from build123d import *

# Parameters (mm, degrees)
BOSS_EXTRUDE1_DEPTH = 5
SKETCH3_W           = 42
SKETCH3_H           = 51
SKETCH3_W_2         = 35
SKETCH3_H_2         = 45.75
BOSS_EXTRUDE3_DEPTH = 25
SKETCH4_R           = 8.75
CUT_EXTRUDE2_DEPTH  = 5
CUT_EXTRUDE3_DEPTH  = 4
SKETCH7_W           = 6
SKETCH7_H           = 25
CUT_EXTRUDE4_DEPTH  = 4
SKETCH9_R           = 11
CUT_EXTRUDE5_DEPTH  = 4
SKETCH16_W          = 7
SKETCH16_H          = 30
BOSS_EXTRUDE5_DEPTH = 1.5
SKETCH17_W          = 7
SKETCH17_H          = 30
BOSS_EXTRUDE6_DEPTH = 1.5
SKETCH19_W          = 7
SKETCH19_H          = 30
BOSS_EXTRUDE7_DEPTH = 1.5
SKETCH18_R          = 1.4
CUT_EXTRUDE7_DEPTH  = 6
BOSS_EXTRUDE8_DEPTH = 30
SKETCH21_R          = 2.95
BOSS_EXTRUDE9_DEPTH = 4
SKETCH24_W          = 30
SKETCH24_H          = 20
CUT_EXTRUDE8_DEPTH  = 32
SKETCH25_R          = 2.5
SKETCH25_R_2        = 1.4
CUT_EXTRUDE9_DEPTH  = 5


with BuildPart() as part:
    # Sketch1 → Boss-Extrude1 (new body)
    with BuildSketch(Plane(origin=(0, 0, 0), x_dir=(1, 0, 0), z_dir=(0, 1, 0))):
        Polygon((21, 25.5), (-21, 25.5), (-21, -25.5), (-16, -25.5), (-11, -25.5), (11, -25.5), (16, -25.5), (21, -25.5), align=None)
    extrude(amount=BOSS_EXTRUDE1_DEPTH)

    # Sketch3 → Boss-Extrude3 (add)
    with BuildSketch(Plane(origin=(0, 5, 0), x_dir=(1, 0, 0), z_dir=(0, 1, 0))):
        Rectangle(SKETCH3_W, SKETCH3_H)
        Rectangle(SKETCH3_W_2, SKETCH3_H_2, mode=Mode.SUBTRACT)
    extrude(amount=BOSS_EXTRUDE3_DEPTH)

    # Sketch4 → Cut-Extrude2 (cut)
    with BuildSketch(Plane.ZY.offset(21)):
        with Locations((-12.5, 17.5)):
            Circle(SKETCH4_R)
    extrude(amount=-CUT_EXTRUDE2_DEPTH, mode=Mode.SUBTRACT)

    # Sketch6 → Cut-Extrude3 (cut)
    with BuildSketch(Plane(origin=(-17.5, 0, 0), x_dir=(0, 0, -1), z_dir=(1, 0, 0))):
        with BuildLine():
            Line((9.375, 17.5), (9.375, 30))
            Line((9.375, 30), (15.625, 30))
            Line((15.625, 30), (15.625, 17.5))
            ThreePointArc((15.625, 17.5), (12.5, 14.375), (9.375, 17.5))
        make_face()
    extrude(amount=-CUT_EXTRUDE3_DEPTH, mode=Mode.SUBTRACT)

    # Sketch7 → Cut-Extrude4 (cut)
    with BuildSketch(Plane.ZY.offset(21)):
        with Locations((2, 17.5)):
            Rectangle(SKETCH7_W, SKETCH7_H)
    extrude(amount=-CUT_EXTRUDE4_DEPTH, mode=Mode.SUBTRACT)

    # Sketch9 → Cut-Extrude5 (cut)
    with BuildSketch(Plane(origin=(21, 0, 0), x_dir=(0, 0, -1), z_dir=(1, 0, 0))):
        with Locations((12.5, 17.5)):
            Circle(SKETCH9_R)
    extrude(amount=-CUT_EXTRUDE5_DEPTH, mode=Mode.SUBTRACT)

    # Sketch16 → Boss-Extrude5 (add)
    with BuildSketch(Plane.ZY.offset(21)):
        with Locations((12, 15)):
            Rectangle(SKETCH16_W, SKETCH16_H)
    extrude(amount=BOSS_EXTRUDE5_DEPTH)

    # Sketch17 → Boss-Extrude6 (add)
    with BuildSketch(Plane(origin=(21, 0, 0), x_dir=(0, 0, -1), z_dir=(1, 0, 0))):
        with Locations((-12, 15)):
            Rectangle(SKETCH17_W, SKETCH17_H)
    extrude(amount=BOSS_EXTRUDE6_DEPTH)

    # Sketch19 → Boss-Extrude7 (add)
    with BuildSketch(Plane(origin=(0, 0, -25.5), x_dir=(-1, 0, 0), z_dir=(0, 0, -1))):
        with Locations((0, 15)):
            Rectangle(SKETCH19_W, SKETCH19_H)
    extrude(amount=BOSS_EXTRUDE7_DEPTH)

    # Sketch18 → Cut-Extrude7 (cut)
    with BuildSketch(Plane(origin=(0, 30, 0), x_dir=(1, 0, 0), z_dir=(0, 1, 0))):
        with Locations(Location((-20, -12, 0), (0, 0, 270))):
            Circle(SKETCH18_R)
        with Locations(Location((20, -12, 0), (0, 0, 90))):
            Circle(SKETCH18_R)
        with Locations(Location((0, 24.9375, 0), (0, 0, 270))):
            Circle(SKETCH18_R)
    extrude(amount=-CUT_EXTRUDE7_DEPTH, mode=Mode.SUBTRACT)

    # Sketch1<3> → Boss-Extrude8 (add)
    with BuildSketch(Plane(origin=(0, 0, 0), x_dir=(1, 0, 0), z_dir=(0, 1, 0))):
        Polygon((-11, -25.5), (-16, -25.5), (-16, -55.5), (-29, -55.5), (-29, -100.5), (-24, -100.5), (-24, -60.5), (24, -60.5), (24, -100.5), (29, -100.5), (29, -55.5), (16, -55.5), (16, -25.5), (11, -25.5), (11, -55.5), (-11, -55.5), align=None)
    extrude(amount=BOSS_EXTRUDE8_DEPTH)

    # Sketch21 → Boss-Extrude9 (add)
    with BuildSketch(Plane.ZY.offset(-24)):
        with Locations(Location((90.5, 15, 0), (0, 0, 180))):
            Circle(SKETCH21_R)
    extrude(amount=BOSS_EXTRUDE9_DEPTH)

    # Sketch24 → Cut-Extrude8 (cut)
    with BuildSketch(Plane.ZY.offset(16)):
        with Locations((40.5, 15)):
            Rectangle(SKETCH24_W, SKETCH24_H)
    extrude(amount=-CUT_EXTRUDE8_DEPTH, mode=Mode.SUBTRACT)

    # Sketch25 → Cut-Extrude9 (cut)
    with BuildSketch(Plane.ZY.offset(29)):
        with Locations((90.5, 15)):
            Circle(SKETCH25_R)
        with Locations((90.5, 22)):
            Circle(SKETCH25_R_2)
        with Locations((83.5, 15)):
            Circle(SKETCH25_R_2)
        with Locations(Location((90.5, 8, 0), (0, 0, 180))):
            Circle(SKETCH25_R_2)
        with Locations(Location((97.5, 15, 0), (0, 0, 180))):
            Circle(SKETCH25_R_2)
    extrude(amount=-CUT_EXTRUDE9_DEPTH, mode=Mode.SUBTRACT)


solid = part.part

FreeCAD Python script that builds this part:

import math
import FreeCAD as App
import Part
import Sketcher
Q = App.Units.Quantity

doc = App.newDocument("Part")
body = doc.addObject("PartDesign::Body", "Body")

# Sketch on XZ plane
sketch1 = body.newObject("Sketcher::SketchObject", "Sketch")
sketch1.AttachmentSupport = (doc.getObject("XZ_Plane"), [""])
sketch1.MapMode = "FlatFace"
sketch1.addGeometry([
    Part.LineSegment(App.Vector(21, -26, 0), App.Vector(-21, -26, 0)),
    Part.LineSegment(App.Vector(-21, -26, 0), App.Vector(-21, 26, 0)),
    Part.LineSegment(App.Vector(-21, 26, 0), App.Vector(21, 26, 0)),
    Part.LineSegment(App.Vector(21, 26, 0), App.Vector(21, -26, 0)),
], False)
sketch1.addConstraint([
    Sketcher.Constraint("Coincident", 0, 2, 1, 1),
    Sketcher.Constraint("Coincident", 1, 2, 2, 1),
    Sketcher.Constraint("Coincident", 2, 2, 3, 1),
    Sketcher.Constraint("Coincident", 3, 2, 0, 1),
    Sketcher.Constraint("Horizontal", 0),
    Sketcher.Constraint("Vertical", 1),
    Sketcher.Constraint("Horizontal", 2),
    Sketcher.Constraint("Vertical", 3),
    Sketcher.Constraint("Symmetric", 0, 2, 2, 2, -1, 1),
    Sketcher.Constraint("DistanceX", 0, 2, 0, 1, Q("42 mm")),
    Sketcher.Constraint("DistanceY", 1, 1, 1, 2, Q("51 mm")),
])
pad1 = body.newObject("PartDesign::Pad", "Pad")
pad1.Profile = sketch1
pad1.Length = 5
pad1.Reversed = True

# Sketch on XZ plane
sketch2 = body.newObject("Sketcher::SketchObject", "Sketch001")
sketch2.AttachmentSupport = (doc.getObject("XZ_Plane"), [""])
sketch2.MapMode = "FlatFace"
sketch2.AttachmentOffset = App.Placement(App.Vector(0, 0, -5), App.Rotation())
sketch2.addGeometry([
    Part.LineSegment(App.Vector(-21, -26, 0), App.Vector(-21, 26, 0)),  # 0
    Part.LineSegment(App.Vector(-21, 26, 0), App.Vector(21, 26, 0)),  # 1
    Part.LineSegment(App.Vector(21, 26, 0), App.Vector(21, -26, 0)),  # 2
    Part.LineSegment(App.Vector(21, -26, 0), App.Vector(-21, -26, 0)),  # 3
    Part.LineSegment(App.Vector(18, 23, 0), App.Vector(-18, 23, 0)),  # 4
    Part.LineSegment(App.Vector(-18, 23, 0), App.Vector(-18, -23, 0)),  # 5
    Part.LineSegment(App.Vector(-18, -23, 0), App.Vector(18, -23, 0)),  # 6
    Part.LineSegment(App.Vector(18, -23, 0), App.Vector(18, 23, 0)),  # 7
], False)
sketch2.addConstraint([
    Sketcher.Constraint("Coincident", 0, 2, 1, 1),
    Sketcher.Constraint("Coincident", 1, 2, 2, 1),
    Sketcher.Constraint("Coincident", 2, 2, 3, 1),
    Sketcher.Constraint("Coincident", 3, 2, 0, 1),
    Sketcher.Constraint("Coincident", 4, 2, 5, 1),
    Sketcher.Constraint("Coincident", 5, 2, 6, 1),
    Sketcher.Constraint("Coincident", 6, 2, 7, 1),
    Sketcher.Constraint("Coincident", 7, 2, 4, 1),
    Sketcher.Constraint("Vertical", 0),
    Sketcher.Constraint("Horizontal", 1),
    Sketcher.Constraint("Vertical", 2),
    Sketcher.Constraint("Horizontal", 3),
    Sketcher.Constraint("Horizontal", 4),
    Sketcher.Constraint("Vertical", 5),
    Sketcher.Constraint("Horizontal", 6),
    Sketcher.Constraint("Vertical", 7),
    Sketcher.Constraint("Symmetric", 0, 2, 2, 2, -1, 1),
    Sketcher.Constraint("Symmetric", 4, 2, 6, 2, -1, 1),
    Sketcher.Constraint("DistanceX", 1, 1, 1, 2, Q("42 mm")),
    Sketcher.Constraint("DistanceX", 4, 2, 4, 1, Q("35 mm")),
    Sketcher.Constraint("DistanceY", 0, 1, 0, 2, Q("51 mm")),
    Sketcher.Constraint("DistanceY", 5, 2, 5, 1, Q("45.75 mm")),
])
pad2 = body.newObject("PartDesign::Pad", "Pad001")
pad2.Profile = sketch2
pad2.Length = 25
pad2.Reversed = True

# Sketch on YZ plane
sketch3 = body.newObject("Sketcher::SketchObject", "Sketch002")
sketch3.AttachmentSupport = (doc.getObject("YZ_Plane"), [""])
sketch3.MapMode = "FlatFace"
sketch3.AttachmentOffset = App.Placement(App.Vector(0, 0, -21), App.Rotation())
sketch3.addGeometry(Part.Circle(App.Vector(18, -12, 0), App.Vector(0, 0, 1), 9), False)
sketch3.addConstraint([
    Sketcher.Constraint("Diameter", 0, Q("17.5 mm")),
    Sketcher.Constraint("DistanceX", -1, 1, 0, 3, Q("17.5 mm")),
    Sketcher.Constraint("DistanceY", 0, 3, -1, 1, Q("12.5 mm")),
])
pocket1 = body.newObject("PartDesign::Pocket", "Pocket")
pocket1.Profile = sketch3
pocket1.Length = 5
pocket1.Reversed = True

# Sketch on YZ plane
sketch4 = body.newObject("Sketcher::SketchObject", "Sketch003")
sketch4.AttachmentSupport = (doc.getObject("YZ_Plane"), [""])
sketch4.MapMode = "FlatFace"
sketch4.AttachmentOffset = App.Placement(App.Vector(0, 0, -17.5), App.Rotation())
sketch4.addGeometry([
    Part.LineSegment(App.Vector(30, -9.4, 0), App.Vector(17.5, -9.4, 0)),
    Part.ArcOfCircle(Part.Circle(App.Vector(17.5, -12.5, 0), App.Vector(0, 0, 1), 3.1), math.radians(90), math.radians(270)),
    Part.LineSegment(App.Vector(17.5, -15.6, 0), App.Vector(30, -15.6, 0)),
    Part.LineSegment(App.Vector(30, -15.6, 0), App.Vector(30, -9.4, 0)),
], False)
sketch4.addConstraint([
    Sketcher.Constraint("Tangent", 0, 2, 1, 1),
    Sketcher.Constraint("Tangent", 1, 2, 2, 1),
    Sketcher.Constraint("Coincident", 2, 2, 3, 1),
    Sketcher.Constraint("Coincident", 3, 2, 0, 1),
    Sketcher.Constraint("Horizontal", 0),
    Sketcher.Constraint("Horizontal", 2),
    Sketcher.Constraint("Vertical", 3),
    Sketcher.Constraint("DistanceX", 0, 2, 0, 1, Q("12.5 mm")),
    Sketcher.Constraint("DistanceX", -1, 1, 2, 2, Q("30 mm")),
    Sketcher.Constraint("Radius", 1, Q("3.125 mm")),
    Sketcher.Constraint("DistanceY", 1, 3, -1, 1, Q("12.5 mm")),
])
pocket2 = body.newObject("PartDesign::Pocket", "Pocket001")
pocket2.Profile = sketch4
pocket2.Length = 4

# Sketch on YZ plane
sketch5 = body.newObject("Sketcher::SketchObject", "Sketch004")
sketch5.AttachmentSupport = (doc.getObject("YZ_Plane"), [""])
sketch5.MapMode = "FlatFace"
sketch5.AttachmentOffset = App.Placement(App.Vector(0, 0, -21), App.Rotation())
sketch5.addGeometry([
    Part.LineSegment(App.Vector(30, -1, 0), App.Vector(5, -1, 0)),
    Part.LineSegment(App.Vector(5, -1, 0), App.Vector(5, 5, 0)),
    Part.LineSegment(App.Vector(5, 5, 0), App.Vector(30, 5, 0)),
    Part.LineSegment(App.Vector(30, 5, 0), App.Vector(30, -1, 0)),
], False)
sketch5.addConstraint([
    Sketcher.Constraint("Coincident", 0, 2, 1, 1),
    Sketcher.Constraint("Coincident", 1, 2, 2, 1),
    Sketcher.Constraint("Coincident", 2, 2, 3, 1),
    Sketcher.Constraint("Coincident", 3, 2, 0, 1),
    Sketcher.Constraint("Horizontal", 0),
    Sketcher.Constraint("Vertical", 1),
    Sketcher.Constraint("Horizontal", 2),
    Sketcher.Constraint("Vertical", 3),
    Sketcher.Constraint("DistanceX", 0, 2, 0, 1, Q("25 mm")),
    Sketcher.Constraint("DistanceY", 1, 1, 1, 2, Q("6 mm")),
    Sketcher.Constraint("DistanceX", -1, 1, 0, 2, Q("5 mm")),
    Sketcher.Constraint("DistanceY", 0, 2, -1, 1, Q("1 mm")),
])
pocket3 = body.newObject("PartDesign::Pocket", "Pocket002")
pocket3.Profile = sketch5
pocket3.Length = 4
pocket3.Reversed = True

# Sketch on YZ plane
sketch6 = body.newObject("Sketcher::SketchObject", "Sketch005")
sketch6.AttachmentSupport = (doc.getObject("YZ_Plane"), [""])
sketch6.MapMode = "FlatFace"
sketch6.AttachmentOffset = App.Placement(App.Vector(0, 0, 21), App.Rotation())
sketch6.addGeometry(Part.Circle(App.Vector(18, -12, 0), App.Vector(0, 0, 1), 11), False)
sketch6.addConstraint([
    Sketcher.Constraint("Diameter", 0, Q("22 mm")),
    Sketcher.Constraint("DistanceX", -1, 1, 0, 3, Q("17.5 mm")),
    Sketcher.Constraint("DistanceY", 0, 3, -1, 1, Q("12.5 mm")),
])
pocket4 = body.newObject("PartDesign::Pocket", "Pocket003")
pocket4.Profile = sketch6
pocket4.Length = 4

# Sketch on YZ plane
sketch7 = body.newObject("Sketcher::SketchObject", "Sketch006")
sketch7.AttachmentSupport = (doc.getObject("YZ_Plane"), [""])
sketch7.MapMode = "FlatFace"
sketch7.AttachmentOffset = App.Placement(App.Vector(0, 0, -21), App.Rotation())
sketch7.addGeometry([
    Part.LineSegment(App.Vector(30, 8, 0), App.Vector(0, 8, 0)),
    Part.LineSegment(App.Vector(0, 8, 0), App.Vector(0, 16, 0)),
    Part.LineSegment(App.Vector(0, 16, 0), App.Vector(30, 16, 0)),
    Part.LineSegment(App.Vector(30, 16, 0), App.Vector(30, 8, 0)),
], False)
sketch7.addConstraint([
    Sketcher.Constraint("Coincident", 0, 2, 1, 1),
    Sketcher.Constraint("Coincident", 1, 2, 2, 1),
    Sketcher.Constraint("Coincident", 2, 2, 3, 1),
    Sketcher.Constraint("Coincident", 3, 2, 0, 1),
    Sketcher.Constraint("Horizontal", 0),
    Sketcher.Constraint("Vertical", 1),
    Sketcher.Constraint("Horizontal", 2),
    Sketcher.Constraint("Vertical", 3),
    Sketcher.Constraint("PointOnObject", 0, 2, -2),
    Sketcher.Constraint("DistanceX", 0, 2, 0, 1, Q("30 mm")),
    Sketcher.Constraint("DistanceY", 1, 1, 1, 2, Q("7 mm")),
    Sketcher.Constraint("DistanceY", -1, 1, 0, 2, Q("8.5 mm")),
])
pad3 = body.newObject("PartDesign::Pad", "Pad002")
pad3.Profile = sketch7
pad3.Length = 1.5
pad3.Reversed = True

# Sketch on YZ plane
sketch8 = body.newObject("Sketcher::SketchObject", "Sketch007")
sketch8.AttachmentSupport = (doc.getObject("YZ_Plane"), [""])
sketch8.MapMode = "FlatFace"
sketch8.AttachmentOffset = App.Placement(App.Vector(0, 0, 21), App.Rotation())
sketch8.addGeometry([
    Part.LineSegment(App.Vector(30, 16, 0), App.Vector(0, 16, 0)),
    Part.LineSegment(App.Vector(0, 16, 0), App.Vector(0, 8, 0)),
    Part.LineSegment(App.Vector(0, 8, 0), App.Vector(30, 8, 0)),
    Part.LineSegment(App.Vector(30, 8, 0), App.Vector(30, 16, 0)),
], False)
sketch8.addConstraint([
    Sketcher.Constraint("Coincident", 0, 2, 1, 1),
    Sketcher.Constraint("Coincident", 1, 2, 2, 1),
    Sketcher.Constraint("Coincident", 2, 2, 3, 1),
    Sketcher.Constraint("Coincident", 3, 2, 0, 1),
    Sketcher.Constraint("Horizontal", 0),
    Sketcher.Constraint("Vertical", 1),
    Sketcher.Constraint("Horizontal", 2),
    Sketcher.Constraint("Vertical", 3),
    Sketcher.Constraint("PointOnObject", 0, 2, -2),
    Sketcher.Constraint("DistanceX", 0, 2, 0, 1, Q("30 mm")),
    Sketcher.Constraint("DistanceY", 1, 2, 1, 1, Q("7 mm")),
    Sketcher.Constraint("DistanceY", -1, 1, 0, 2, Q("15.5 mm")),
])
pad4 = body.newObject("PartDesign::Pad", "Pad003")
pad4.Profile = sketch8
pad4.Length = 1.5

# Sketch on XY plane
sketch9 = body.newObject("Sketcher::SketchObject", "Sketch008")
sketch9.AttachmentSupport = (doc.getObject("XY_Plane"), [""])
sketch9.MapMode = "FlatFace"
sketch9.AttachmentOffset = App.Placement(App.Vector(0, 0, -25.5), App.Rotation())
sketch9.addGeometry([
    Part.LineSegment(App.Vector(4, 30, 0), App.Vector(4, 0, 0)),
    Part.LineSegment(App.Vector(4, 0, 0), App.Vector(-4, 0, 0)),
    Part.LineSegment(App.Vector(-4, 0, 0), App.Vector(-4, 30, 0)),
    Part.LineSegment(App.Vector(-4, 30, 0), App.Vector(4, 30, 0)),
], False)
sketch9.addConstraint([
    Sketcher.Constraint("Coincident", 0, 2, 1, 1),
    Sketcher.Constraint("Coincident", 1, 2, 2, 1),
    Sketcher.Constraint("Coincident", 2, 2, 3, 1),
    Sketcher.Constraint("Coincident", 3, 2, 0, 1),
    Sketcher.Constraint("Vertical", 0),
    Sketcher.Constraint("Horizontal", 1),
    Sketcher.Constraint("Vertical", 2),
    Sketcher.Constraint("Horizontal", 3),
    Sketcher.Constraint("Symmetric", 0, 2, 1, 2, -1, 1),
    Sketcher.Constraint("DistanceX", 1, 2, 1, 1, Q("7 mm")),
    Sketcher.Constraint("DistanceY", 0, 2, 0, 1, Q("30 mm")),
])
pad5 = body.newObject("PartDesign::Pad", "Pad004")
pad5.Profile = sketch9
pad5.Length = 1.5
pad5.Reversed = True

# Sketch on XZ plane
sketch10 = body.newObject("Sketcher::SketchObject", "Sketch009")
sketch10.AttachmentSupport = (doc.getObject("XZ_Plane"), [""])
sketch10.MapMode = "FlatFace"
sketch10.AttachmentOffset = App.Placement(App.Vector(0, 0, -30), App.Rotation())
sketch10.addGeometry([
    Part.Circle(App.Vector(-20, 12, 0), App.Vector(0, 0, 1), 1.4),
    Part.Circle(App.Vector(20, 12, 0), App.Vector(0, 0, 1), 1.4),
    Part.Circle(App.Vector(0, -24.9, 0), App.Vector(0, 0, 1), 1.4),
], False)
sketch10.addConstraint([
    Sketcher.Constraint("Equal", 0, 1),
    Sketcher.Constraint("Equal", 1, 2),
    Sketcher.Constraint("Symmetric", 0, 3, 1, 3, -2),
    Sketcher.Constraint("PointOnObject", 2, 3, -2),
    Sketcher.Constraint("Diameter", 0, Q("2.8 mm")),
    Sketcher.Constraint("DistanceX", 0, 3, -1, 1, Q("20 mm")),
    Sketcher.Constraint("DistanceY", -1, 1, 0, 3, Q("12 mm")),
    Sketcher.Constraint("DistanceY", 2, 3, -1, 1, Q("24.9375 mm")),
])
pocket5 = body.newObject("PartDesign::Pocket", "Pocket004")
pocket5.Profile = sketch10
pocket5.Length = 6
pocket5.Reversed = True

# Sketch on XZ plane
sketch11 = body.newObject("Sketcher::SketchObject", "Sketch010")
sketch11.AttachmentSupport = (doc.getObject("XZ_Plane"), [""])
sketch11.MapMode = "FlatFace"
sketch11.addGeometry([
    Part.LineSegment(App.Vector(-11, 26, 0), App.Vector(-16, 26, 0)),  # 0
    Part.LineSegment(App.Vector(-16, 26, 0), App.Vector(-16, 56, 0)),  # 1
    Part.LineSegment(App.Vector(-16, 56, 0), App.Vector(-29, 56, 0)),  # 2
    Part.LineSegment(App.Vector(-29, 56, 0), App.Vector(-29, 100, 0)),  # 3
    Part.LineSegment(App.Vector(-29, 100, 0), App.Vector(-24, 100, 0)),  # 4
    Part.LineSegment(App.Vector(-24, 100, 0), App.Vector(-24, 60, 0)),  # 5
    Part.LineSegment(App.Vector(-24, 60, 0), App.Vector(24, 60, 0)),  # 6
    Part.LineSegment(App.Vector(24, 60, 0), App.Vector(24, 100, 0)),  # 7
    Part.LineSegment(App.Vector(24, 100, 0), App.Vector(29, 100, 0)),  # 8
    Part.LineSegment(App.Vector(29, 100, 0), App.Vector(29, 56, 0)),  # 9
    Part.LineSegment(App.Vector(29, 56, 0), App.Vector(16, 56, 0)),  # 10
    Part.LineSegment(App.Vector(16, 56, 0), App.Vector(16, 26, 0)),  # 11
    Part.LineSegment(App.Vector(16, 26, 0), App.Vector(11, 26, 0)),  # 12
    Part.LineSegment(App.Vector(11, 26, 0), App.Vector(11, 56, 0)),  # 13
    Part.LineSegment(App.Vector(11, 56, 0), App.Vector(-11, 56, 0)),  # 14
    Part.LineSegment(App.Vector(-11, 56, 0), App.Vector(-11, 26, 0)),  # 15
], False)
sketch11.addConstraint([
    Sketcher.Constraint("Coincident", 0, 2, 1, 1),
    Sketcher.Constraint("Coincident", 1, 2, 2, 1),
    Sketcher.Constraint("Coincident", 2, 2, 3, 1),
    Sketcher.Constraint("Coincident", 3, 2, 4, 1),
    Sketcher.Constraint("Coincident", 4, 2, 5, 1),
    Sketcher.Constraint("Coincident", 5, 2, 6, 1),
    Sketcher.Constraint("Coincident", 6, 2, 7, 1),
    Sketcher.Constraint("Coincident", 7, 2, 8, 1),
    Sketcher.Constraint("Coincident", 8, 2, 9, 1),
    Sketcher.Constraint("Coincident", 9, 2, 10, 1),
    Sketcher.Constraint("Coincident", 10, 2, 11, 1),
    Sketcher.Constraint("Coincident", 11, 2, 12, 1),
    Sketcher.Constraint("Coincident", 12, 2, 13, 1),
    Sketcher.Constraint("Coincident", 13, 2, 14, 1),
    Sketcher.Constraint("Coincident", 14, 2, 15, 1),
    Sketcher.Constraint("Coincident", 15, 2, 0, 1),
    Sketcher.Constraint("Horizontal", 0),
    Sketcher.Constraint("Vertical", 1),
    Sketcher.Constraint("Horizontal", 2),
    Sketcher.Constraint("Vertical", 3),
    Sketcher.Constraint("Horizontal", 4),
    Sketcher.Constraint("Vertical", 5),
    Sketcher.Constraint("Horizontal", 6),
    Sketcher.Constraint("Vertical", 7),
    Sketcher.Constraint("Horizontal", 8),
    Sketcher.Constraint("Vertical", 9),
    Sketcher.Constraint("Horizontal", 10),
    Sketcher.Constraint("Vertical", 11),
    Sketcher.Constraint("Horizontal", 12),
    Sketcher.Constraint("Vertical", 13),
    Sketcher.Constraint("Horizontal", 14),
    Sketcher.Constraint("Vertical", 15),
    Sketcher.Constraint("Symmetric", 4, 2, 7, 2, -2),
    Sketcher.Constraint("Symmetric", 2, 2, 9, 2, -2),
    Sketcher.Constraint("Symmetric", 0, 2, 11, 2, -2),
    Sketcher.Constraint("Horizontal", 10, 2, 13, 2),
    Sketcher.Constraint("Equal", 0, 4),
    Sketcher.Constraint("Equal", 8, 12),
    Sketcher.Constraint("DistanceX", 0, 2, 0, 1, Q("5 mm")),
    Sketcher.Constraint("DistanceX", 2, 2, 2, 1, Q("13 mm")),
    Sketcher.Constraint("DistanceX", 6, 1, 6, 2, Q("48 mm")),
    Sketcher.Constraint("DistanceY", 1, 1, 1, 2, Q("30 mm")),
    Sketcher.Constraint("DistanceY", 3, 1, 3, 2, Q("45 mm")),
    Sketcher.Constraint("DistanceY", 5, 2, 5, 1, Q("40 mm")),
    Sketcher.Constraint("DistanceY", -1, 1, 0, 2, Q("25.5 mm")),
])
pad6 = body.newObject("PartDesign::Pad", "Pad005")
pad6.Profile = sketch11
pad6.Length = 30
pad6.Reversed = True

# Sketch on YZ plane
sketch12 = body.newObject("Sketcher::SketchObject", "Sketch011")
sketch12.AttachmentSupport = (doc.getObject("YZ_Plane"), [""])
sketch12.MapMode = "FlatFace"
sketch12.AttachmentOffset = App.Placement(App.Vector(0, 0, 24), App.Rotation())
sketch12.addGeometry(Part.Circle(App.Vector(15, 90.5, 0), App.Vector(0, 0, 1), 3), False)
sketch12.addConstraint([
    Sketcher.Constraint("Diameter", 0, Q("5.9 mm")),
    Sketcher.Constraint("DistanceX", -1, 1, 0, 3, Q("15 mm")),
    Sketcher.Constraint("DistanceY", -1, 1, 0, 3, Q("90.5 mm")),
])
pad7 = body.newObject("PartDesign::Pad", "Pad006")
pad7.Profile = sketch12
pad7.Length = 4
pad7.Reversed = True

# Sketch on YZ plane
sketch13 = body.newObject("Sketcher::SketchObject", "Sketch012")
sketch13.AttachmentSupport = (doc.getObject("YZ_Plane"), [""])
sketch13.MapMode = "FlatFace"
sketch13.AttachmentOffset = App.Placement(App.Vector(0, 0, -16), App.Rotation())
sketch13.addGeometry([
    Part.LineSegment(App.Vector(25, 26, 0), App.Vector(5, 26, 0)),
    Part.LineSegment(App.Vector(5, 26, 0), App.Vector(5, 56, 0)),
    Part.LineSegment(App.Vector(5, 56, 0), App.Vector(25, 56, 0)),
    Part.LineSegment(App.Vector(25, 56, 0), App.Vector(25, 26, 0)),
], False)
sketch13.addConstraint([
    Sketcher.Constraint("Coincident", 0, 2, 1, 1),
    Sketcher.Constraint("Coincident", 1, 2, 2, 1),
    Sketcher.Constraint("Coincident", 2, 2, 3, 1),
    Sketcher.Constraint("Coincident", 3, 2, 0, 1),
    Sketcher.Constraint("Horizontal", 0),
    Sketcher.Constraint("Vertical", 1),
    Sketcher.Constraint("Horizontal", 2),
    Sketcher.Constraint("Vertical", 3),
    Sketcher.Constraint("DistanceX", 0, 2, 0, 1, Q("20 mm")),
    Sketcher.Constraint("DistanceY", 1, 1, 1, 2, Q("30 mm")),
    Sketcher.Constraint("DistanceX", -1, 1, 0, 2, Q("5 mm")),
    Sketcher.Constraint("DistanceY", -1, 1, 0, 2, Q("25.5 mm")),
])
pocket6 = body.newObject("PartDesign::Pocket", "Pocket005")
pocket6.Profile = sketch13
pocket6.Length = 32
pocket6.Reversed = True

# Sketch on YZ plane
sketch14 = body.newObject("Sketcher::SketchObject", "Sketch013")
sketch14.AttachmentSupport = (doc.getObject("YZ_Plane"), [""])
sketch14.MapMode = "FlatFace"
sketch14.AttachmentOffset = App.Placement(App.Vector(0, 0, -29), App.Rotation())
sketch14.addGeometry([
    Part.Circle(App.Vector(15, 90.5, 0), App.Vector(0, 0, 1), 2.5),  # 0
    Part.Circle(App.Vector(22, 90.5, 0), App.Vector(0, 0, 1), 1.4),  # 1
    Part.Circle(App.Vector(15, 83.5, 0), App.Vector(0, 0, 1), 1.4),  # 2
    Part.Circle(App.Vector(8, 90.5, 0), App.Vector(0, 0, 1), 1.4),  # 3
    Part.Circle(App.Vector(15, 97.5, 0), App.Vector(0, 0, 1), 1.4),  # 4
], False)
sketch14.addConstraint([
    Sketcher.Constraint("Equal", 1, 2),
    Sketcher.Constraint("Equal", 2, 3),
    Sketcher.Constraint("Equal", 3, 4),
    Sketcher.Constraint("Horizontal", 0, 3, 1, 3),
    Sketcher.Constraint("Horizontal", 1, 3, 3, 3),
    Sketcher.Constraint("Vertical", 0, 3, 2, 3),
    Sketcher.Constraint("Vertical", 2, 3, 4, 3),
    Sketcher.Constraint("Diameter", 0, Q("5 mm")),
    Sketcher.Constraint("Diameter", 1, Q("2.8 mm")),
    Sketcher.Constraint("DistanceX", -1, 1, 0, 3, Q("15 mm")),
    Sketcher.Constraint("DistanceX", -1, 1, 1, 3, Q("22 mm")),
    Sketcher.Constraint("DistanceX", -1, 1, 3, 3, Q("8 mm")),
    Sketcher.Constraint("DistanceY", 2, 3, 0, 3, Q("7 mm")),
    Sketcher.Constraint("DistanceY", 0, 3, 4, 3, Q("7 mm")),
    Sketcher.Constraint("DistanceY", -1, 1, 0, 3, Q("90.5 mm")),
])
pocket7 = body.newObject("PartDesign::Pocket", "Pocket006")
pocket7.Profile = sketch14
pocket7.Length = 5
pocket7.Reversed = True

doc.recompute()
